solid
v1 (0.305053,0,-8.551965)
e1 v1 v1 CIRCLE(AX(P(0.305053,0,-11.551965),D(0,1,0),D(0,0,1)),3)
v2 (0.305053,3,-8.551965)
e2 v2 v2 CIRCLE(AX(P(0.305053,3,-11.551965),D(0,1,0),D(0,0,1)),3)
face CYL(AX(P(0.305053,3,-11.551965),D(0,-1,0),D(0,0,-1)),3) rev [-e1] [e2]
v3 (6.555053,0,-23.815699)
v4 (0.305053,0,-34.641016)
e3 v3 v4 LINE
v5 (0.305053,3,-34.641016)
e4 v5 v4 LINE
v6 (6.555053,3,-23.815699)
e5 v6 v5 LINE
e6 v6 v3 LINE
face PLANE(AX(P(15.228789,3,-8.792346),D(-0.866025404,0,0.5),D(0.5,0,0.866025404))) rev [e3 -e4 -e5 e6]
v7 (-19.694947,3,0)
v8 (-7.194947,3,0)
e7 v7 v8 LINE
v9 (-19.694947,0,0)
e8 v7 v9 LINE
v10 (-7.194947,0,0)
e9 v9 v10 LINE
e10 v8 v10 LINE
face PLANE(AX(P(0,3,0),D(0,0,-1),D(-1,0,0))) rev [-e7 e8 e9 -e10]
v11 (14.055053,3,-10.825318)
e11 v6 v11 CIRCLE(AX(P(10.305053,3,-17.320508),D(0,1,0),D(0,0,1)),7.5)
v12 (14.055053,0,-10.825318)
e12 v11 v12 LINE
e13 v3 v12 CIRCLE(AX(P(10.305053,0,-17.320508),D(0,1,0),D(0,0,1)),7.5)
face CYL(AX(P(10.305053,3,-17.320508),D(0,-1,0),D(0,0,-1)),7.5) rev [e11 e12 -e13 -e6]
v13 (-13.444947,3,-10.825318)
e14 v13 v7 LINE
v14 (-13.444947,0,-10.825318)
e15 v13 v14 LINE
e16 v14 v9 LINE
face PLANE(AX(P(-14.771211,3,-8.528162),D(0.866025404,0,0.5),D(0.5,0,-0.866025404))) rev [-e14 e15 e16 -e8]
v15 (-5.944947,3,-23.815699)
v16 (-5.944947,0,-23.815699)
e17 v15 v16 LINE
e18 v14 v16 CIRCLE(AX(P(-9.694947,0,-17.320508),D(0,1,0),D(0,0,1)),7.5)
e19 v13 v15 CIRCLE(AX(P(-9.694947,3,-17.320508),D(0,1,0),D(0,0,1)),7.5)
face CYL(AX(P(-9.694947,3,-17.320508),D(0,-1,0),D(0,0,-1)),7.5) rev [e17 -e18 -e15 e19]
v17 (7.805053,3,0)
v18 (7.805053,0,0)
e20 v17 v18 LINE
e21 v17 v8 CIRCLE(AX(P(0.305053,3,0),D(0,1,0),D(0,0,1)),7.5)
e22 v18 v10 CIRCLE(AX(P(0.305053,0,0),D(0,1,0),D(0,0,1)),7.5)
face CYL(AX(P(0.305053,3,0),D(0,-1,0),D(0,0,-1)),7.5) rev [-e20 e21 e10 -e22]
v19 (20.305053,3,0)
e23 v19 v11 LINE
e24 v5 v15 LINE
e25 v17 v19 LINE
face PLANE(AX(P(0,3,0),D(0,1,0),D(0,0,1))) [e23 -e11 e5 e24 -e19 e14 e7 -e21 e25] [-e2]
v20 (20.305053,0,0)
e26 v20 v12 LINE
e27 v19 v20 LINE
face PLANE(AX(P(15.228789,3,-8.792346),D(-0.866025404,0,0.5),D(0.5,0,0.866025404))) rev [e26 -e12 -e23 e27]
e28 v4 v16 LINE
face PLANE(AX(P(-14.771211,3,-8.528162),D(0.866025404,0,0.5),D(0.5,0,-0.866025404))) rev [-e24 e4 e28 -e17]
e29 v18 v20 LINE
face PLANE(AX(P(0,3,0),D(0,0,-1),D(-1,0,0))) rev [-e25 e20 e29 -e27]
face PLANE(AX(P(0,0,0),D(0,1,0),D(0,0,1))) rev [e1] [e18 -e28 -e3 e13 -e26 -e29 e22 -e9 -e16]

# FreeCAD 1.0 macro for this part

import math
import FreeCAD as App
import Part
import Sketcher
Q = App.Units.Quantity

doc = App.newDocument("Part")
params = doc.addObject("Spreadsheet::Sheet", "Params")
for row, (alias, value) in enumerate([
    ("sketch1_diameter", "6 mm"),
    ("sketch1_radius", "7.5 mm"),
    ("sketch1_width", "12.5 mm"),
    ("sketch1_length", "12.5 mm"),
    ("pad1_length", "3 mm"),
], start=1):
    params.set(f"A{row}", alias)
    params.set(f"B{row}", "=" + value)
    params.setAlias(f"B{row}", alias)

body = doc.addObject("PartDesign::Body", "Body")

sketch1 = doc.addObject("Sketcher::SketchObject", "Sketch")
body.addObject(sketch1)
sketch1.AttachmentSupport = (doc.XZ_Plane, [""])
sketch1.MapMode = "FlatFace"
sketch1.addGeometry([
    Part.LineSegment(App.Vector(6.6, -23.8, 0), App.Vector(0.3, -34.6, 0)),
    Part.LineSegment(App.Vector(0.3, -34.6, 0), App.Vector(-5.9, -23.8, 0)),
    Part.ArcOfCircle(Part.Circle(App.Vector(-9.7, -17.3, 0), App.Vector(0, 0, 1), 7.5), math.radians(-60), math.radians(0)),
    Part.ArcOfCircle(Part.Circle(App.Vector(-9.7, -17.3, 0), App.Vector(0, 0, 1), 7.5), math.radians(0), math.radians(120)),
    Part.LineSegment(App.Vector(-13.4, -10.8, 0), App.Vector(-19.7, 0, 0)),
    Part.LineSegment(App.Vector(-19.7, 0, 0), App.Vector(-7.2, 0, 0)),
    Part.ArcOfCircle(Part.Circle(App.Vector(0.3, 0, 0), App.Vector(0, 0, 1), 7.5), math.radians(180), math.radians(360)),
    Part.LineSegment(App.Vector(7.8, 0, 0), App.Vector(20.3, 0, 0)),
    Part.LineSegment(App.Vector(20.3, 0, 0), App.Vector(14.1, -10.8, 0)),
    Part.ArcOfCircle(Part.Circle(App.Vector(10.3, -17.3, 0), App.Vector(0, 0, 1), 7.5), math.radians(60), math.radians(240)),
    Part.Circle(App.Vector(0.3, -11.6, 0), App.Vector(0, 0, 1), 3),
], False)
sketch1.addConstraint([
    Sketcher.Constraint("Coincident", 0, 2, 1, 1),
    Sketcher.Constraint("Coincident", 1, 2, 2, 1),
    Sketcher.Constraint("Tangent", 2, 2, 3, 1),
    Sketcher.Constraint("Coincident", 3, 2, 4, 1),
    Sketcher.Constraint("Coincident", 4, 2, 5, 1),
    Sketcher.Constraint("Coincident", 5, 2, 6, 1),
    Sketcher.Constraint("Coincident", 6, 2, 7, 1),
    Sketcher.Constraint("Coincident", 7, 2, 8, 1),
    Sketcher.Constraint("Coincident", 8, 2, 9, 1),
    Sketcher.Constraint("Coincident", 9, 2, 0, 1),
    Sketcher.Constraint("Horizontal", 5),
    Sketcher.Constraint("Horizontal", 7),
    Sketcher.Constraint("Equal", 2, 3),
    Sketcher.Constraint("Equal", 3, 6),
    Sketcher.Constraint("Equal", 6, 9),
    Sketcher.Constraint("PointOnObject", 6, 3, -1),
    Sketcher.Constraint("PointOnObject", 4, 2, -1),
    Sketcher.Constraint("PointOnObject", 6, 2, -1),
    Sketcher.Constraint("Parallel", 1, 4),
    Sketcher.Constraint("Parallel", 0, 8),
    Sketcher.Constraint("Horizontal", 3, 3, 9, 3),
    Sketcher.Constraint("Horizontal", 9, 3, 2, 2),
    Sketcher.Constraint("Horizontal", 3, 2, 8, 2),
    Sketcher.Constraint("Horizontal", 1, 2, 9, 2),
    Sketcher.Constraint("Vertical", 6, 3, 10, 3),
    Sketcher.Constraint("Vertical", 10, 3, 0, 2),
    Sketcher.Constraint("Equal", 5, 7),
    Sketcher.Constraint("Equal", 1, 4),
    Sketcher.Constraint("Diameter", 10, Q("6 mm")),
    Sketcher.Constraint("Radius", 2, Q("7.5 mm")),
    Sketcher.Constraint("Angle", 0, Q("-120 deg")),
    Sketcher.Constraint("DistanceX", 5, 1, 5, 2, Q("12.5 mm")),
    Sketcher.Constraint("DistanceX", 3, 3, 6, 3, Q("10 mm")),
    Sketcher.Constraint("Distance", 0, Q("12.5 mm")),
    Sketcher.Constraint("DistanceY", 0, 2, 10, 3, Q("23.089051 mm")),
    Sketcher.Constraint("DistanceX", 2, 3, -1, 1, Q("9.694947 mm")),
])
sketch1.setExpression("Constraints[28]", "Params.sketch1_diameter")
sketch1.setExpression("Constraints[29]", "Params.sketch1_radius")
sketch1.setExpression("Constraints[31]", "Params.sketch1_width")
sketch1.setExpression("Constraints[33]", "Params.sketch1_length")
pad1 = doc.addObject("PartDesign::Pad", "Pad")
body.addObject(pad1)
pad1.Profile = sketch1
pad1.setExpression("Length", "Params.pad1_length")
pad1.Reversed = True

doc.recompute()
